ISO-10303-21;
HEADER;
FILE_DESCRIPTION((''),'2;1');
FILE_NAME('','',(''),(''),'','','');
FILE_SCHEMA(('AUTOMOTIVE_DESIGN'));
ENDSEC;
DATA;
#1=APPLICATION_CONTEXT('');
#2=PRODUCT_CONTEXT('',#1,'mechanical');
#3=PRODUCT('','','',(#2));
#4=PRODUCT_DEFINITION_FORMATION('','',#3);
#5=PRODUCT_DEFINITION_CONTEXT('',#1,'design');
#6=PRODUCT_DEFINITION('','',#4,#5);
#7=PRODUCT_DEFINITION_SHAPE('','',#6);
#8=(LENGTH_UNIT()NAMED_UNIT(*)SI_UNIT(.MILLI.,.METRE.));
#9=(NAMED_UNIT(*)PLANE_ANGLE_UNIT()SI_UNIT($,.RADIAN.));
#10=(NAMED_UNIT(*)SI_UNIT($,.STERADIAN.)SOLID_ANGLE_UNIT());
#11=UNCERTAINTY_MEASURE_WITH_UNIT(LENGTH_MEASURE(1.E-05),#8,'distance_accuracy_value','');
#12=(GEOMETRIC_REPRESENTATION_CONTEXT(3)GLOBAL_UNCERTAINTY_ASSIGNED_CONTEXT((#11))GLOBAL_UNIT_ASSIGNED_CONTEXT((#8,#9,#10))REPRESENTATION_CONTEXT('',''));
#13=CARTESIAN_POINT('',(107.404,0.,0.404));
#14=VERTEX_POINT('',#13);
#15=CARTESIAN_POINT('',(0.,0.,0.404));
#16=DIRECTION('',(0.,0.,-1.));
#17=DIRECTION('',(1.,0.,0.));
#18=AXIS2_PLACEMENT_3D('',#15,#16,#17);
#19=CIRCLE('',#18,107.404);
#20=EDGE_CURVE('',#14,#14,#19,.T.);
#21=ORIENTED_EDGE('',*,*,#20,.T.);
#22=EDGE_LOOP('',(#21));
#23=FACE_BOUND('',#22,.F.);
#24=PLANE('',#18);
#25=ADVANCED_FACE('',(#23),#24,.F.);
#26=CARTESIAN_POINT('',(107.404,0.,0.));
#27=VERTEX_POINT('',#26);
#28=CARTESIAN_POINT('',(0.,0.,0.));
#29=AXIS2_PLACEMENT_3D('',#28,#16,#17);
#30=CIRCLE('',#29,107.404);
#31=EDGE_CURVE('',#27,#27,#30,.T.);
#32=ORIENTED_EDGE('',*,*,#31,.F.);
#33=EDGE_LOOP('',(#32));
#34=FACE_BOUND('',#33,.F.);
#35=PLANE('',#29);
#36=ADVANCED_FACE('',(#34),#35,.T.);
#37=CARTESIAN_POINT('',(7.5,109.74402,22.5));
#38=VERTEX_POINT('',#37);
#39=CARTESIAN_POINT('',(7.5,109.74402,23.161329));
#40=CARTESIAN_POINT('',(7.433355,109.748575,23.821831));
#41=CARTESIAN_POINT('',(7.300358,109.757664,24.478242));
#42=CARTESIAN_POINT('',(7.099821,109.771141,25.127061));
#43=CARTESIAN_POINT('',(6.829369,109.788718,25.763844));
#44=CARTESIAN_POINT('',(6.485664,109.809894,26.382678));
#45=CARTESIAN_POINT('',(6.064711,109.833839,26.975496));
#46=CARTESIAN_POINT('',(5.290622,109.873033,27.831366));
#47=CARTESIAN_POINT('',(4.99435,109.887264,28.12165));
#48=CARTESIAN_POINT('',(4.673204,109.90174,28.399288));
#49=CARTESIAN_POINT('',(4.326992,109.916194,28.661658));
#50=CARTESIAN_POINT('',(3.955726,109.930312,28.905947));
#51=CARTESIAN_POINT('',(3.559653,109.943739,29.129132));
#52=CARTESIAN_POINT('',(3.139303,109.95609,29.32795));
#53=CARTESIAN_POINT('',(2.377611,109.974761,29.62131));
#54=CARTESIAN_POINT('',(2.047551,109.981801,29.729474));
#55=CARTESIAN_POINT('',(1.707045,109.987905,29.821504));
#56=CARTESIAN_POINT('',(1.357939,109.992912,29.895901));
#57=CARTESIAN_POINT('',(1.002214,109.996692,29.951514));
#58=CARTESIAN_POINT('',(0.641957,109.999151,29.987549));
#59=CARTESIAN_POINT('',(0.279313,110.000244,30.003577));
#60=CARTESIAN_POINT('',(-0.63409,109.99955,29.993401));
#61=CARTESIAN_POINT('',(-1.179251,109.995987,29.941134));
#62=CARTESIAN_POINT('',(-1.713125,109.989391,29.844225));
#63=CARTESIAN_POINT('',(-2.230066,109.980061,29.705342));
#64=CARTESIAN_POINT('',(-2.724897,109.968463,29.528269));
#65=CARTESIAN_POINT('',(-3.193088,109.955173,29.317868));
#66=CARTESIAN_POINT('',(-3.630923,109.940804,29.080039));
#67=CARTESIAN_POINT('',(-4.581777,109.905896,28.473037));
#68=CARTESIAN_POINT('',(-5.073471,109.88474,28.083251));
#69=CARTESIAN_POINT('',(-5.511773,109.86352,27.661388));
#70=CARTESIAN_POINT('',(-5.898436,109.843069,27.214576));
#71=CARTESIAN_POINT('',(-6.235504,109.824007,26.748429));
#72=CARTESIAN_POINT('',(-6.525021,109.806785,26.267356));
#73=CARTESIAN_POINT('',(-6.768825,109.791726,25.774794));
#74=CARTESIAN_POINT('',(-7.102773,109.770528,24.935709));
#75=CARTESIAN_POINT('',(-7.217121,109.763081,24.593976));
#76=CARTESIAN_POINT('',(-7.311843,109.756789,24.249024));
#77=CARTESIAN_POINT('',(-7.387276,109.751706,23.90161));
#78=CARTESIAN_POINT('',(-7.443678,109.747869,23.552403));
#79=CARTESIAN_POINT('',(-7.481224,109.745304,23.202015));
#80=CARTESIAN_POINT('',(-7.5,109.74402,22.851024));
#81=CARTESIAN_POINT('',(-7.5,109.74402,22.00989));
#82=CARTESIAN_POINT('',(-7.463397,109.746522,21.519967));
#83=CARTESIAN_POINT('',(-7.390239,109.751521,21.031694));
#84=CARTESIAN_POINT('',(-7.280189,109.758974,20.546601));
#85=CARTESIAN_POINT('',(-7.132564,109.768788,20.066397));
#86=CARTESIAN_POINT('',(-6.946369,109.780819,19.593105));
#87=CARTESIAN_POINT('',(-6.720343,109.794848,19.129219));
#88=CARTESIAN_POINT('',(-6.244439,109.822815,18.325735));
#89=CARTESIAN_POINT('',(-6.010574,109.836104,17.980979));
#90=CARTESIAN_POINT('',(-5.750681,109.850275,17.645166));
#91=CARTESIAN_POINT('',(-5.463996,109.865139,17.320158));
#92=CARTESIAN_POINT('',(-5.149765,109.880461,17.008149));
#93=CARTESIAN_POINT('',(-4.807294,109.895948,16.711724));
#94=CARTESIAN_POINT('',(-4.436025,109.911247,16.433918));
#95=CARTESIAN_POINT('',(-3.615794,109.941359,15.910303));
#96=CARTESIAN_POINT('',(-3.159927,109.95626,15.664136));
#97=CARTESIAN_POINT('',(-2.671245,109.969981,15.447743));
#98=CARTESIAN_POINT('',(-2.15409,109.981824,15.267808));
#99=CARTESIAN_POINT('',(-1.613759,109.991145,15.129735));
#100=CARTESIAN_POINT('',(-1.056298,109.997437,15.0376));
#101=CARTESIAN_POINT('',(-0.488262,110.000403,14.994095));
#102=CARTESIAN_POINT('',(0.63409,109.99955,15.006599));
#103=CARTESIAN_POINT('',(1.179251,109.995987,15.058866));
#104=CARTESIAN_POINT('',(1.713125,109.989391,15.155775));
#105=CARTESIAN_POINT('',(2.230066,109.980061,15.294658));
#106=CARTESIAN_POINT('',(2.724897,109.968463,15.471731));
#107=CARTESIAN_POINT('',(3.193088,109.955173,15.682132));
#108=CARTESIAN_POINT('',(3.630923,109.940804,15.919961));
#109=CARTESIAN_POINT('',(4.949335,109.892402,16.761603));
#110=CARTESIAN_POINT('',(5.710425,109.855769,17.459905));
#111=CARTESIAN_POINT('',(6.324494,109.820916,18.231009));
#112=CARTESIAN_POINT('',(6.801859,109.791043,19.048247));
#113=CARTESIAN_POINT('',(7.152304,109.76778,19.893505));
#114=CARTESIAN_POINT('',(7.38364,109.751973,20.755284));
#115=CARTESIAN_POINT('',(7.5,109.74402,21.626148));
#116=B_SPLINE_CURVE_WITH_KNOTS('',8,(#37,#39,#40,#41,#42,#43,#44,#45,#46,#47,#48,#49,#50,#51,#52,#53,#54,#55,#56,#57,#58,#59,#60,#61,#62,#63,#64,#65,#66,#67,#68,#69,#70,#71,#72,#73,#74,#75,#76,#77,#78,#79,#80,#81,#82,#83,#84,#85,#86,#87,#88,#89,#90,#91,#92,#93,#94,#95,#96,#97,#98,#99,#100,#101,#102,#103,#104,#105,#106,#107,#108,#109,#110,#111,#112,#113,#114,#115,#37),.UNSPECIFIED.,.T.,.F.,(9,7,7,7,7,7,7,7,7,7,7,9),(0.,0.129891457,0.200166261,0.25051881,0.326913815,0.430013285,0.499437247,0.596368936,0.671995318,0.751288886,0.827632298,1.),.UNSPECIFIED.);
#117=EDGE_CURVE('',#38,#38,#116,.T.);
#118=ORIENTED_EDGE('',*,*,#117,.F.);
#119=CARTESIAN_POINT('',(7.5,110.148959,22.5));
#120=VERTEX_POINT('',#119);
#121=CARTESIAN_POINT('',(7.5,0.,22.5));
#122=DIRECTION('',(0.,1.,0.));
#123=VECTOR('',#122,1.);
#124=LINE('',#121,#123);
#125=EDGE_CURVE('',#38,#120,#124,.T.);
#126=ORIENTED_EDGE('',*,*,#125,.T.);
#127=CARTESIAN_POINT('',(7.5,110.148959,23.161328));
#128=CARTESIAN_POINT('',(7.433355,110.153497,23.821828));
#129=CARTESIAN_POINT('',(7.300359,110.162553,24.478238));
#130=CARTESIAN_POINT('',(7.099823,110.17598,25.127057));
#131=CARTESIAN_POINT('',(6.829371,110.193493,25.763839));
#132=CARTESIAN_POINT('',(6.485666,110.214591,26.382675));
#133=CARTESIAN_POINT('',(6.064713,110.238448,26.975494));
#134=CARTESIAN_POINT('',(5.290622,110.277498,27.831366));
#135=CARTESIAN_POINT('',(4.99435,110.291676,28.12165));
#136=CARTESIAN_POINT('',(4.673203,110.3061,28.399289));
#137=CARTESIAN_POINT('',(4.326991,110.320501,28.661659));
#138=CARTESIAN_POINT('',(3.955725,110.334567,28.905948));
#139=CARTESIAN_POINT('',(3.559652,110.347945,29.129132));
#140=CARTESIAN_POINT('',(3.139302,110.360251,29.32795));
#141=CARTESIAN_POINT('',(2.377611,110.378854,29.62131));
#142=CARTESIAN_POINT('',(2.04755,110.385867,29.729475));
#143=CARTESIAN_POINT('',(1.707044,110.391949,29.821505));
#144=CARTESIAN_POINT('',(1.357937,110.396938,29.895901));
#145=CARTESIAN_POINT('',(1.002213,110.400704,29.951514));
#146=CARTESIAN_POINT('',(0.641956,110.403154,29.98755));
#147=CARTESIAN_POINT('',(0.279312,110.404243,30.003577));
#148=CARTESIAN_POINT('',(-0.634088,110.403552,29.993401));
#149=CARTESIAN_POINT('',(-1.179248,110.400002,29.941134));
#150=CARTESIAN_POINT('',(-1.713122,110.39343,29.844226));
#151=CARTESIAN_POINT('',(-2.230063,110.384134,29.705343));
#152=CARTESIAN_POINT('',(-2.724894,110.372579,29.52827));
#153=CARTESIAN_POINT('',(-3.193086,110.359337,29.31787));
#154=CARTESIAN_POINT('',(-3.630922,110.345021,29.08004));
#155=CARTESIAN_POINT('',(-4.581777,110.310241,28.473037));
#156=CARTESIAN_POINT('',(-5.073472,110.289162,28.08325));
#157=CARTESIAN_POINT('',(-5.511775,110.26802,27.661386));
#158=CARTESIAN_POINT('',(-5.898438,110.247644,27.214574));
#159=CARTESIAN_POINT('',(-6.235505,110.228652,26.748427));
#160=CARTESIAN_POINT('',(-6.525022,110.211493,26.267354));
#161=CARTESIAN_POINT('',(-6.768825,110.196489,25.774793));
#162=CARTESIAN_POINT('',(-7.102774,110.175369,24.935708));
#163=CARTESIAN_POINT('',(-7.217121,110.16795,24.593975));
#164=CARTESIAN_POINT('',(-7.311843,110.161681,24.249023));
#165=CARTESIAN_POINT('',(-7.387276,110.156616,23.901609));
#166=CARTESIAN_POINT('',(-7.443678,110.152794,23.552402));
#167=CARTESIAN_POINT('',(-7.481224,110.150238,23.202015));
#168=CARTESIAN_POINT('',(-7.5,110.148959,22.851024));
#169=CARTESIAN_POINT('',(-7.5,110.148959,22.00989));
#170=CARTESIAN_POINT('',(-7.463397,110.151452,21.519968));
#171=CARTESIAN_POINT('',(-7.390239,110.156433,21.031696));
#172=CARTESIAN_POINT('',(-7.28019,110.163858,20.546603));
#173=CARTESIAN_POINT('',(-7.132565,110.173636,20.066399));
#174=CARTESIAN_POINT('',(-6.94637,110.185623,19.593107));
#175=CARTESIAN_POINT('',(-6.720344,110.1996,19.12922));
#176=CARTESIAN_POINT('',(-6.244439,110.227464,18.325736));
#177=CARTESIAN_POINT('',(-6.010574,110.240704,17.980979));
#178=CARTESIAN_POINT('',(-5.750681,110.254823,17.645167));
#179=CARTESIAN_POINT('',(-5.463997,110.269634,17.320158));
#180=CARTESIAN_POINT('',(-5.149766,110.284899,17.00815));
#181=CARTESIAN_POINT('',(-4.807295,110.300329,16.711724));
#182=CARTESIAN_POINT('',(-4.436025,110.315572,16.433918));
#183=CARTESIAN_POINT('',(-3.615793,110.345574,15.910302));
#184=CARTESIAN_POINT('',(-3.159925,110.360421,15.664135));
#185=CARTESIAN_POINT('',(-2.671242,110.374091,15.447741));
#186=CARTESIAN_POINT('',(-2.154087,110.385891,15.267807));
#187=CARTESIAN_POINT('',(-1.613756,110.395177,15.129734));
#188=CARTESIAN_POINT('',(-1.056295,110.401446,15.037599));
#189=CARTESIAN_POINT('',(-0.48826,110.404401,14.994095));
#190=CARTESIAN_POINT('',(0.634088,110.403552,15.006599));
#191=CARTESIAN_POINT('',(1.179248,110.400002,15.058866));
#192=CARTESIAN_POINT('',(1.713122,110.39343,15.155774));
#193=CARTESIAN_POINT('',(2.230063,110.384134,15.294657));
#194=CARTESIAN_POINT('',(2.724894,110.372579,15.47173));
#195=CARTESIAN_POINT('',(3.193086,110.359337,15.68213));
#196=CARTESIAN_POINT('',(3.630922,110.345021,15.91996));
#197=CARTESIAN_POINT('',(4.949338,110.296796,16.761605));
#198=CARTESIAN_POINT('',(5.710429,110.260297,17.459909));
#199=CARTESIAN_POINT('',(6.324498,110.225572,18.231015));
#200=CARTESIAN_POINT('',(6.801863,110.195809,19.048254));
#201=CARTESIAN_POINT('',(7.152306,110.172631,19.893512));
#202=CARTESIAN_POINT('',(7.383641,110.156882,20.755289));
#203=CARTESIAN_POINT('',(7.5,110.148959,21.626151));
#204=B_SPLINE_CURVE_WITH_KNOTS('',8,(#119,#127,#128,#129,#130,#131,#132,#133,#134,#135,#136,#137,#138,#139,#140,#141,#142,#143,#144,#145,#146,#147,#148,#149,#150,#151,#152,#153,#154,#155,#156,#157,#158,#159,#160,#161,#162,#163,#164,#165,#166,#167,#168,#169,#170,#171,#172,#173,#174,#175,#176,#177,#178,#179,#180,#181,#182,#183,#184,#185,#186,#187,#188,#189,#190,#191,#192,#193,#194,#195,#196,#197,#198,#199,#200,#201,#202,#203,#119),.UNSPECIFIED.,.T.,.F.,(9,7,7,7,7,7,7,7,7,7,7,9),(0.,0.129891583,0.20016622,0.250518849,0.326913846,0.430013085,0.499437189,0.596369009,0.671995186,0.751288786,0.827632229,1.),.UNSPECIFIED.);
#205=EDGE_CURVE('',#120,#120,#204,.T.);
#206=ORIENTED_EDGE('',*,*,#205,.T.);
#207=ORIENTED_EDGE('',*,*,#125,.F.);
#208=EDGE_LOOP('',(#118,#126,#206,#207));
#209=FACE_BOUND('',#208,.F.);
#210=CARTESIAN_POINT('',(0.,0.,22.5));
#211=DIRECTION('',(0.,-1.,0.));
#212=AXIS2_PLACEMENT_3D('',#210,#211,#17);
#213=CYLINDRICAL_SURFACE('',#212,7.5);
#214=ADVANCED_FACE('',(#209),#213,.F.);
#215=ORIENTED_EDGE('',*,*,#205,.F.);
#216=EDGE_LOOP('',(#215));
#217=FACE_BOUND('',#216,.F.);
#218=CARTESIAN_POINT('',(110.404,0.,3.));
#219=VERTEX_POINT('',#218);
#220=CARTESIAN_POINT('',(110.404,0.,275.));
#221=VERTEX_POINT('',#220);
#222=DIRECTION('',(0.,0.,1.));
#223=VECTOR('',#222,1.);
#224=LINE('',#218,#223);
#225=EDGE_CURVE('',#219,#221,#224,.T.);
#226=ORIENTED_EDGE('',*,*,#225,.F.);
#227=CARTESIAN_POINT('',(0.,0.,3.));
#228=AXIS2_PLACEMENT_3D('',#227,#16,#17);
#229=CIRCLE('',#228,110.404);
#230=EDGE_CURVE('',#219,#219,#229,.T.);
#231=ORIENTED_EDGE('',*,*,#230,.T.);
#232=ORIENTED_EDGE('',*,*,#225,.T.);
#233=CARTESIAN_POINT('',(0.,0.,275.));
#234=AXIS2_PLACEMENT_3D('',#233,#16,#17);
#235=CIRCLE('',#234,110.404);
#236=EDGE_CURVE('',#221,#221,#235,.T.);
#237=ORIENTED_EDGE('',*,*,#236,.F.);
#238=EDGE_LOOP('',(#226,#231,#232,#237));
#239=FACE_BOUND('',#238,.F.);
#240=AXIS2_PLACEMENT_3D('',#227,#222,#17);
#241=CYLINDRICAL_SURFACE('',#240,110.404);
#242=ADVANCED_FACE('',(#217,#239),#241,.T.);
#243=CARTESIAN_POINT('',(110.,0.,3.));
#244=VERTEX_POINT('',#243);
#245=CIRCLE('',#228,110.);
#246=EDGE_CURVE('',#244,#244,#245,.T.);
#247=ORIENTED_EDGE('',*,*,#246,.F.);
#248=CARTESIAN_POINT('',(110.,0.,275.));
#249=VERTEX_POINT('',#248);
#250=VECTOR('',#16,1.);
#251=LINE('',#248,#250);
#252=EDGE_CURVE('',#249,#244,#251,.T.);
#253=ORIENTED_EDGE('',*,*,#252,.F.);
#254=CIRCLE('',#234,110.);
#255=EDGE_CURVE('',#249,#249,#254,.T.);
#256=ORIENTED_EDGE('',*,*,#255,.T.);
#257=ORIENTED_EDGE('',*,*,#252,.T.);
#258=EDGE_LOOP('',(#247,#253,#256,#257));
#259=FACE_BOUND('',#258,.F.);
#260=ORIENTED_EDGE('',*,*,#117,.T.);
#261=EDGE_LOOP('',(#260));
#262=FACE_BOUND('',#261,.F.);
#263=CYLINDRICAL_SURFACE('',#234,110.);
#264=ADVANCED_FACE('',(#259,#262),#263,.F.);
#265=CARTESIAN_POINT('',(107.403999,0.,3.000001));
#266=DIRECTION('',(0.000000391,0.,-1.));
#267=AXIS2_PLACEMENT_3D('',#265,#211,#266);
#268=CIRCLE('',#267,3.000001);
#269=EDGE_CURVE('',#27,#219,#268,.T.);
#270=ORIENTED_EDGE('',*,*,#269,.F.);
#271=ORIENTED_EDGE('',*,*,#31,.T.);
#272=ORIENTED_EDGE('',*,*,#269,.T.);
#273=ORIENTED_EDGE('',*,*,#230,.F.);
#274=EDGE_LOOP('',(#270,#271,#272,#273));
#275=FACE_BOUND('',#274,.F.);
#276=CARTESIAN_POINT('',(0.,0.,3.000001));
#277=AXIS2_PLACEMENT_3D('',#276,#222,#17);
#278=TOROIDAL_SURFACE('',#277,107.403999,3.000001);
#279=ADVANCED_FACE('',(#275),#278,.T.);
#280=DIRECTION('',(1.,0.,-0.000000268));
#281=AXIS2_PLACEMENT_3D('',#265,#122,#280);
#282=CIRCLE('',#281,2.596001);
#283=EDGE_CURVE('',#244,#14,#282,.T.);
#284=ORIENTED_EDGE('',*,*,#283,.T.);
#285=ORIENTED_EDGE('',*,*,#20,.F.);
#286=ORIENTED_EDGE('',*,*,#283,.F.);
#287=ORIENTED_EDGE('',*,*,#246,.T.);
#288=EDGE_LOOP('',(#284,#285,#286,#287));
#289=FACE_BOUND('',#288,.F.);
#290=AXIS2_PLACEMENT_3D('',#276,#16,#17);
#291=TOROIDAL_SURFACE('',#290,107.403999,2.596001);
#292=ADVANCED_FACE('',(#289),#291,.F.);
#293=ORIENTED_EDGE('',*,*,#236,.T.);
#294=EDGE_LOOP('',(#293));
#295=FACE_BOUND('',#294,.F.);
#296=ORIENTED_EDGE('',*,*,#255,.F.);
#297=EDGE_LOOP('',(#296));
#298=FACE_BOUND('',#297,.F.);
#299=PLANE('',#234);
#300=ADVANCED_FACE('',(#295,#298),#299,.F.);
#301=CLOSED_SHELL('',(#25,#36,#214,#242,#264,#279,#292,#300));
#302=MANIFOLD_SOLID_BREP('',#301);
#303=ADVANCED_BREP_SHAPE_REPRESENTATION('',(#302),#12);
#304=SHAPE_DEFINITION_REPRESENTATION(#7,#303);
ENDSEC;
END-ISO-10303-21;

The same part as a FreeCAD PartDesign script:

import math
import FreeCAD as App
import Part
import Sketcher
from FreeCAD import Vector

doc = App.newDocument("Part")
body = doc.addObject("PartDesign::Body", "Body")

# Sketch on XZ plane
sketch1 = body.newObject("Sketcher::SketchObject", "Sketch")
sketch1.AttachmentSupport = (doc.getObject("XZ_Plane"), [""])
sketch1.MapMode = "FlatFace"
sketch1.addGeometry(Part.LineSegment(Vector(0, 0.4, 0), Vector(0, 0, 0)), False)
sketch1.addGeometry(Part.LineSegment(Vector(0, 0, 0), Vector(107.4, 0, 0)), False)
sketch1.addGeometry(Part.ArcOfCircle(Part.Circle(Vector(107.4, 3, 0), Vector(0, 0, 1), 3), math.radians(-90), math.radians(0)), False)
sketch1.addGeometry(Part.LineSegment(Vector(110.4, 3, 0), Vector(110.4, 275, 0)), False)
sketch1.addGeometry(Part.LineSegment(Vector(110.4, 275, 0), Vector(110, 275, 0)), False)
sketch1.addGeometry(Part.LineSegment(Vector(110, 275, 0), Vector(110, 3, 0)), False)
sketch1.addGeometry(Part.ArcOfCircle(Part.Circle(Vector(107.4, 3, 0), Vector(0, 0, 1), 2.6), math.radians(-90), math.radians(0)), False)
sketch1.addGeometry(Part.LineSegment(Vector(107.4, 0.4, 0), Vector(0, 0.4, 0)), False)
sketch1.addConstraint(Sketcher.Constraint("Coincident", 0, 2, 1, 1))
sketch1.addConstraint(Sketcher.Constraint("Tangent", 1, 2, 2, 1))
sketch1.addConstraint(Sketcher.Constraint("Tangent", 2, 2, 3, 1))
sketch1.addConstraint(Sketcher.Constraint("Coincident", 3, 2, 4, 1))
sketch1.addConstraint(Sketcher.Constraint("Coincident", 4, 2, 5, 1))
sketch1.addConstraint(Sketcher.Constraint("Tangent", 5, 2, 6, 2))
sketch1.addConstraint(Sketcher.Constraint("Tangent", 6, 1, 7, 1))
sketch1.addConstraint(Sketcher.Constraint("Coincident", 7, 2, 0, 1))
sketch1.addConstraint(Sketcher.Constraint("Vertical", 0))
sketch1.addConstraint(Sketcher.Constraint("Horizontal", 1))
sketch1.addConstraint(Sketcher.Constraint("Vertical", 3))
sketch1.addConstraint(Sketcher.Constraint("Horizontal", 4))
sketch1.addConstraint(Sketcher.Constraint("Vertical", 5))
sketch1.addConstraint(Sketcher.Constraint("Horizontal", 7))
sketch1.addConstraint(Sketcher.Constraint("Coincident", 0, 2, -1, 1))
sketch1.addConstraint(Sketcher.Constraint("Coincident", 6, 3, 2, 3))
sketch1.addConstraint(Sketcher.Constraint("Radius", 2, 3.000001))
sketch1.addConstraint(Sketcher.Constraint("DistanceY", 3, 1, 3, 2, 272.0))
sketch1.addConstraint(Sketcher.Constraint("DistanceX", -1, 1, 4, 2, 110.0))
sketch1.addConstraint(Sketcher.Constraint("Radius", 6, 2.596001))
revolution = body.newObject("PartDesign::Revolution", "Revolution")
revolution.Profile = sketch1
revolution.ReferenceAxis = (sketch1, ["V_Axis"])
revolution.Angle = 360

# Sketch on XZ plane
sketch2 = body.newObject("Sketcher::SketchObject", "Sketch001")
sketch2.AttachmentSupport = (doc.getObject("XZ_Plane"), [""])
sketch2.MapMode = "FlatFace"
sketch2.addGeometry(Part.Circle(Vector(0, 22, 0), Vector(0, 0, 1), 8), False)
sketch2.addConstraint(Sketcher.Constraint("PointOnObject", 0, 3, -2))
sketch2.addConstraint(Sketcher.Constraint("Diameter", 0, 15.0))
sketch2.addConstraint(Sketcher.Constraint("DistanceY", -1, 1, 0, 3, 22.5))
pocket1 = body.newObject("PartDesign::Pocket", "Pocket")
pocket1.Profile = sketch2
pocket1.Length = 226.06

doc.recompute()
